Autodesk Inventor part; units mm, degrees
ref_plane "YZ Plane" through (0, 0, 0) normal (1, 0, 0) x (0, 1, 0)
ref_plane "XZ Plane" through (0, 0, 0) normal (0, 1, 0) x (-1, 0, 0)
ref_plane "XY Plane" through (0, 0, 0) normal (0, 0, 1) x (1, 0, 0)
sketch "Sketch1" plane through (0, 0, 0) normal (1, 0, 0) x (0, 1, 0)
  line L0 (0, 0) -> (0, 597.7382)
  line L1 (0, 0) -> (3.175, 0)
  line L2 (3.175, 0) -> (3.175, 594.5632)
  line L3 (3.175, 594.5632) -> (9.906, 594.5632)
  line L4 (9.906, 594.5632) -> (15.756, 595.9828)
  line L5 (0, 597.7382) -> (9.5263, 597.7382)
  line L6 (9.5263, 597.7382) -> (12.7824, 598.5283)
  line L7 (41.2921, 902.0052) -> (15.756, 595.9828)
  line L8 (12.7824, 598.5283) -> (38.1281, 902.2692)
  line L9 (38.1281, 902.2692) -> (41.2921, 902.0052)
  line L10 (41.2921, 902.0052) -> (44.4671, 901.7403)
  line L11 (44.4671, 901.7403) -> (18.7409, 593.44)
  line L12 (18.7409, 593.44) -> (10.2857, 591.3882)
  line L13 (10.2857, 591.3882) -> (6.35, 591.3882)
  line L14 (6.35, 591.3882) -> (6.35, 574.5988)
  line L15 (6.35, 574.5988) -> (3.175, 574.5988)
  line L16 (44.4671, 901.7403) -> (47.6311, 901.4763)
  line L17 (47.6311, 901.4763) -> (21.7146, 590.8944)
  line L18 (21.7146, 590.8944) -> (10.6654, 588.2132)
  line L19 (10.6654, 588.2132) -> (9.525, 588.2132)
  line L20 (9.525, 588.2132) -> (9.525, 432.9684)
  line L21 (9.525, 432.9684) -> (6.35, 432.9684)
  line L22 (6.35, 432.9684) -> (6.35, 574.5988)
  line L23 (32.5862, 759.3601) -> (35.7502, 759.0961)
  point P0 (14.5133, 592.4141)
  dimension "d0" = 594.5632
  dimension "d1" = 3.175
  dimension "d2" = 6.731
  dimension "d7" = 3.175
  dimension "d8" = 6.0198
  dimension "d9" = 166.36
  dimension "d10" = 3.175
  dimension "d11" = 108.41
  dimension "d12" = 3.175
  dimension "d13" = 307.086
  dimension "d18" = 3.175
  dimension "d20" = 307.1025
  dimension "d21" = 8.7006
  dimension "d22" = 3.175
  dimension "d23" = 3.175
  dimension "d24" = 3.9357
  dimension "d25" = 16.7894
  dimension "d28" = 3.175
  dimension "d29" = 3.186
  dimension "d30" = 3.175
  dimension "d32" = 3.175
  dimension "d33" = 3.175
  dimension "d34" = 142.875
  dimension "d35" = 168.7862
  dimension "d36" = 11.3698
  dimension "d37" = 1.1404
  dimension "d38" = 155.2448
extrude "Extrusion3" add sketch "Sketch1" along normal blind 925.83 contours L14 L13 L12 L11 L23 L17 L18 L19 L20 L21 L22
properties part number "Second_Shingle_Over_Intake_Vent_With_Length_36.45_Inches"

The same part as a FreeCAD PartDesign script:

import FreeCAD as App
import Part
import Sketcher

V = App.Vector
Q = App.Units.Quantity

doc = App.newDocument("Part")
params = doc.addObject("Spreadsheet::Sheet", "Params")
for row, (alias, value) in enumerate([
    ("sketch1_width", "0.125 in"),
    ("sketch1_height", "6.112 in"),
    ("sketch1_length", "0.125 in"),
    ("sketch1_length2", "6.555 in"),
    ("pad1_length", "36.45 in"),
], start=1):
    params.set(f"A{row}", alias)
    params.set(f"B{row}", "=" + value)
    params.setAlias(f"B{row}", alias)

body = doc.addObject("PartDesign::Body", "Body")

sketch1 = body.newObject("Sketcher::SketchObject", "Sketch")
sketch1.AttachmentSupport = (doc.getObject("YZ_Plane"), [""])
sketch1.MapMode = "FlatFace"
sketch1.addGeometry([
    Part.LineSegment(V(6.35, 591.3882, 0), V(6.35, 432.9684, 0)),
    Part.LineSegment(V(6.35, 432.9684, 0), V(9.525, 432.9684, 0)),
    Part.LineSegment(V(9.525, 432.9684, 0), V(9.525, 588.2132, 0)),
    Part.LineSegment(V(9.525, 588.2132, 0), V(10.6654, 588.2132, 0)),
    Part.LineSegment(V(10.6654, 588.2132, 0), V(21.7146, 590.8944, 0)),
    Part.LineSegment(V(21.7146, 590.8944, 0), V(35.750187, 759.096101, 0)),
    Part.LineSegment(V(35.7502, 759.0961, 0), V(32.5862, 759.3601, 0)),
    Part.LineSegment(V(32.586147, 759.360104, 0), V(18.7409, 593.44, 0)),
    Part.LineSegment(V(18.7409, 593.44, 0), V(10.2857, 591.3882, 0)),
    Part.LineSegment(V(10.2857, 591.3882, 0), V(6.35, 591.3882, 0)),
], False)
sketch1.addConstraint([
    Sketcher.Constraint("Coincident", 0, 2, 1, 1),
    Sketcher.Constraint("Coincident", 1, 2, 2, 1),
    Sketcher.Constraint("Coincident", 2, 2, 3, 1),
    Sketcher.Constraint("Coincident", 3, 2, 4, 1),
    Sketcher.Constraint("Coincident", 4, 2, 5, 1),
    Sketcher.Constraint("Coincident", 5, 2, 6, 1),
    Sketcher.Constraint("Coincident", 6, 2, 7, 1),
    Sketcher.Constraint("Coincident", 7, 2, 8, 1),
    Sketcher.Constraint("Coincident", 8, 2, 9, 1),
    Sketcher.Constraint("Coincident", 9, 2, 0, 1),
    Sketcher.Constraint("Vertical", 0),
    Sketcher.Constraint("Horizontal", 1),
    Sketcher.Constraint("Vertical", 2),
    Sketcher.Constraint("Horizontal", 3),
    Sketcher.Constraint("Horizontal", 9),
    Sketcher.Constraint("DistanceX", 1, 1, 1, 2, Q("0.125 in")),
    Sketcher.Constraint("DistanceY", 2, 1, 2, 2, Q("6.112 in")),
    Sketcher.Constraint("Distance", 6, Q("0.125 in")),
    Sketcher.Constraint("DistanceX", 3, 1, 3, 2, Q("0.0449 in")),
    Sketcher.Constraint("DistanceY", 3, 2, 8, 2, Q("0.125 in")),
    Sketcher.Constraint("DistanceX", 9, 2, 9, 1, Q("3.9357 mm")),
    Sketcher.Constraint("Distance", 4, Q("11.3699 mm")),
    Sketcher.Constraint("Distance", 5, Q("168.7863 mm")),
    Sketcher.Constraint("Distance", 8, Q("8.7006 mm")),
    Sketcher.Constraint("DistanceX", -1, 1, 0, 2, Q("0.25 in")),
    Sketcher.Constraint("Distance", 7, Q("6.555 in")),
    Sketcher.Constraint("DistanceY", -1, 1, 0, 2, Q("17.046 in")),
    Sketcher.Constraint("DistanceX", 3, 2, 4, 2, Q("0.435 in")),
    Sketcher.Constraint("DistanceX", 3, 2, 5, 2, Q("0.9876 in")),
    Sketcher.Constraint("DistanceY", 5, 2, 6, 2, Q("0.0104 in")),
])
sketch1.setExpression("Constraints[15]", "Params.sketch1_width")
sketch1.setExpression("Constraints[16]", "Params.sketch1_height")
sketch1.setExpression("Constraints[17]", "Params.sketch1_length")
sketch1.setExpression("Constraints[25]", "Params.sketch1_length2")
pad1 = body.newObject("PartDesign::Pad", "Pad")
pad1.Profile = sketch1
pad1.setExpression("Length", "Params.pad1_length")

doc.recompute()
